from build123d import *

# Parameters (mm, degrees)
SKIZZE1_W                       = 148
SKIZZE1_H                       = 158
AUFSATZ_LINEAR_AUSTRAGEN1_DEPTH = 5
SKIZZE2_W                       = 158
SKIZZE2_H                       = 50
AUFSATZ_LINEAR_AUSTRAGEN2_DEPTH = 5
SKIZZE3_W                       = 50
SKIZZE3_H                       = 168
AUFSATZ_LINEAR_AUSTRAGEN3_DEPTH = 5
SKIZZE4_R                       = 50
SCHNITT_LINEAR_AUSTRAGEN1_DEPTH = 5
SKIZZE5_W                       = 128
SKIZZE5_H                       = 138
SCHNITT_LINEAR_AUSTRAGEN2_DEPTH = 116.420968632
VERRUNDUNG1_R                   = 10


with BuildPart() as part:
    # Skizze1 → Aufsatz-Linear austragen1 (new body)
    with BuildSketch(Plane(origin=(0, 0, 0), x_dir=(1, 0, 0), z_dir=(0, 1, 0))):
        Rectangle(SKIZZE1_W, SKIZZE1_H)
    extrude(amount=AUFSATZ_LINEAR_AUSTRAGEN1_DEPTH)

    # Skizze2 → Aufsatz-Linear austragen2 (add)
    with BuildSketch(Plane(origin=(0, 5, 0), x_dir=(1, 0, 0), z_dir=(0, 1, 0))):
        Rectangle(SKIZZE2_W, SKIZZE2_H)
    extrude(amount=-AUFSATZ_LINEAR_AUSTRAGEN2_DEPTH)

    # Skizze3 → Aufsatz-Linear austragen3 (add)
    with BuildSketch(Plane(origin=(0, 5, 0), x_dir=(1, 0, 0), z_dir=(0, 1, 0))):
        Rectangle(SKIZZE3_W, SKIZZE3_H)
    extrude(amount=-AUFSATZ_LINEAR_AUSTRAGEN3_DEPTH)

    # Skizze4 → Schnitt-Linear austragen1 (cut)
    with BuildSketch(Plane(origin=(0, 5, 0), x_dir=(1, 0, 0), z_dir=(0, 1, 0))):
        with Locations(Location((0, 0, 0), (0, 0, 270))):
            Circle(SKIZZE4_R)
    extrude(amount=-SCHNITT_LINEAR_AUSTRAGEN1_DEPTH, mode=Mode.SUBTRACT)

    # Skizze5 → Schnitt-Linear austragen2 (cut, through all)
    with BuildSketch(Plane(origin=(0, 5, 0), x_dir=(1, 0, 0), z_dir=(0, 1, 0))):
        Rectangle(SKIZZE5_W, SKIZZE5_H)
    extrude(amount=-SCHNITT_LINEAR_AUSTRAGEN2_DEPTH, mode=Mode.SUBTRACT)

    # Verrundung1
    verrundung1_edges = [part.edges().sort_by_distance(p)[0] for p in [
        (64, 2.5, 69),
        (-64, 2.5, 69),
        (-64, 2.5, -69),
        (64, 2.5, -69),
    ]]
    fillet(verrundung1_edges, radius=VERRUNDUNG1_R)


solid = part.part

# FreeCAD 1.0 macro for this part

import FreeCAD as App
import Part
import Sketcher
from FreeCAD import Vector


def edges_at(feature, points):
    """Names of the edges that pass closest to the given points."""
    edges = feature.Shape.Edges
    near = lambda p: min(range(len(edges)), key=lambda i: edges[i].distToShape(Part.Vertex(*p))[0])
    return sorted({f"Edge{near(p) + 1}" for p in points})

doc = App.newDocument("Part")
body = doc.addObject("PartDesign::Body", "Body")

sketch1 = doc.addObject("Sketcher::SketchObject", "Sketch")
body.addObject(sketch1)
sketch1.AttachmentSupport = (doc.XZ_Plane, [""])
sketch1.MapMode = "FlatFace"
sketch1.addGeometry([
    Part.LineSegment(Vector(-74, -79, 0), Vector(-74, 79, 0)),
    Part.LineSegment(Vector(-74, 79, 0), Vector(74, 79, 0)),
    Part.LineSegment(Vector(74, 79, 0), Vector(74, -79, 0)),
    Part.LineSegment(Vector(74, -79, 0), Vector(-74, -79, 0)),
], False)
sketch1.addConstraint([
    Sketcher.Constraint("Coincident", 0, 2, 1, 1),
    Sketcher.Constraint("Coincident", 1, 2, 2, 1),
    Sketcher.Constraint("Coincident", 2, 2, 3, 1),
    Sketcher.Constraint("Coincident", 3, 2, 0, 1),
    Sketcher.Constraint("Vertical", 0),
    Sketcher.Constraint("Horizontal", 1),
    Sketcher.Constraint("Vertical", 2),
    Sketcher.Constraint("Horizontal", 3),
    Sketcher.Constraint("Symmetric", 0, 2, 2, 2, -1, 1),
    Sketcher.Constraint("DistanceX", 1, 1, 1, 2, 148.0),
    Sketcher.Constraint("DistanceY", 0, 1, 0, 2, 158.0),
])
pad1 = doc.addObject("PartDesign::Pad", "Pad")
body.addObject(pad1)
pad1.Profile = sketch1
pad1.Length = 5
pad1.Reversed = True

sketch2 = doc.addObject("Sketcher::SketchObject", "Sketch001")
body.addObject(sketch2)
sketch2.AttachmentSupport = (doc.XZ_Plane, [""])
sketch2.MapMode = "FlatFace"
sketch2.AttachmentOffset = App.Placement(Vector(0, 0, -5), App.Rotation())
sketch2.addGeometry([
    Part.LineSegment(Vector(-79, -25, 0), Vector(-79, 25, 0)),
    Part.LineSegment(Vector(-79, 25, 0), Vector(79, 25, 0)),
    Part.LineSegment(Vector(79, 25, 0), Vector(79, -25, 0)),
    Part.LineSegment(Vector(79, -25, 0), Vector(-79, -25, 0)),
], False)
sketch2.addConstraint([
    Sketcher.Constraint("Coincident", 0, 2, 1, 1),
    Sketcher.Constraint("Coincident", 1, 2, 2, 1),
    Sketcher.Constraint("Coincident", 2, 2, 3, 1),
    Sketcher.Constraint("Coincident", 3, 2, 0, 1),
    Sketcher.Constraint("Vertical", 0),
    Sketcher.Constraint("Horizontal", 1),
    Sketcher.Constraint("Vertical", 2),
    Sketcher.Constraint("Horizontal", 3),
    Sketcher.Constraint("Symmetric", 0, 2, 2, 2, -1, 1),
    Sketcher.Constraint("DistanceX", 1, 1, 1, 2, 158.0),
    Sketcher.Constraint("DistanceY", 0, 1, 0, 2, 50.0),
])
pad2 = doc.addObject("PartDesign::Pad", "Pad001")
body.addObject(pad2)
pad2.Profile = sketch2
pad2.Length = 5

sketch3 = doc.addObject("Sketcher::SketchObject", "Sketch002")
body.addObject(sketch3)
sketch3.AttachmentSupport = (doc.XZ_Plane, [""])
sketch3.MapMode = "FlatFace"
sketch3.AttachmentOffset = App.Placement(Vector(0, 0, -5), App.Rotation())
sketch3.addGeometry([
    Part.LineSegment(Vector(-25, -84, 0), Vector(-25, 84, 0)),
    Part.LineSegment(Vector(-25, 84, 0), Vector(25, 84, 0)),
    Part.LineSegment(Vector(25, 84, 0), Vector(25, -84, 0)),
    Part.LineSegment(Vector(25, -84, 0), Vector(-25, -84, 0)),
], False)
sketch3.addConstraint([
    Sketcher.Constraint("Coincident", 0, 2, 1, 1),
    Sketcher.Constraint("Coincident", 1, 2, 2, 1),
    Sketcher.Constraint("Coincident", 2, 2, 3, 1),
    Sketcher.Constraint("Coincident", 3, 2, 0, 1),
    Sketcher.Constraint("Vertical", 0),
    Sketcher.Constraint("Horizontal", 1),
    Sketcher.Constraint("Vertical", 2),
    Sketcher.Constraint("Horizontal", 3),
    Sketcher.Constraint("Symmetric", 0, 2, 2, 2, -1, 1),
    Sketcher.Constraint("DistanceX", 1, 1, 1, 2, 50.0),
    Sketcher.Constraint("DistanceY", 0, 1, 0, 2, 168.0),
])
pad3 = doc.addObject("PartDesign::Pad", "Pad002")
body.addObject(pad3)
pad3.Profile = sketch3
pad3.Length = 5

sketch4 = doc.addObject("Sketcher::SketchObject", "Sketch003")
body.addObject(sketch4)
sketch4.AttachmentSupport = (doc.XZ_Plane, [""])
sketch4.MapMode = "FlatFace"
sketch4.AttachmentOffset = App.Placement(Vector(0, 0, -5), App.Rotation())
sketch4.addGeometry(Part.Circle(Vector(0, 0, 0), Vector(0, 0, 1), 50), False)
sketch4.addConstraint([
    Sketcher.Constraint("Coincident", 0, 3, -1, 1),
    Sketcher.Constraint("Diameter", 0, 100.0),
])
pocket1 = doc.addObject("PartDesign::Pocket", "Pocket")
body.addObject(pocket1)
pocket1.Profile = sketch4
pocket1.Length = 5
pocket1.Reversed = True

sketch5 = doc.addObject("Sketcher::SketchObject", "Sketch004")
body.addObject(sketch5)
sketch5.AttachmentSupport = (doc.XZ_Plane, [""])
sketch5.MapMode = "FlatFace"
sketch5.AttachmentOffset = App.Placement(Vector(0, 0, -5), App.Rotation())
sketch5.addGeometry([
    Part.LineSegment(Vector(-64, -69, 0), Vector(-64, 69, 0)),
    Part.LineSegment(Vector(-64, 69, 0), Vector(64, 69, 0)),
    Part.LineSegment(Vector(64, 69, 0), Vector(64, -69, 0)),
    Part.LineSegment(Vector(64, -69, 0), Vector(-64, -69, 0)),
], False)
sketch5.addConstraint([
    Sketcher.Constraint("Coincident", 0, 2, 1, 1),
    Sketcher.Constraint("Coincident", 1, 2, 2, 1),
    Sketcher.Constraint("Coincident", 2, 2, 3, 1),
    Sketcher.Constraint("Coincident", 3, 2, 0, 1),
    Sketcher.Constraint("Vertical", 0),
    Sketcher.Constraint("Horizontal", 1),
    Sketcher.Constraint("Vertical", 2),
    Sketcher.Constraint("Horizontal", 3),
    Sketcher.Constraint("Symmetric", 0, 2, 2, 2, -1, 1),
    Sketcher.Constraint("DistanceX", 1, 1, 1, 2, 128.0),
    Sketcher.Constraint("DistanceY", 0, 1, 0, 2, 138.0),
])
pocket2 = doc.addObject("PartDesign::Pocket", "Pocket001")
body.addObject(pocket2)
pocket2.Profile = sketch5
pocket2.Type = "ThroughAll"
pocket2.Reversed = True
doc.recompute()

fillet = doc.addObject("PartDesign::Fillet", "Fillet")
body.addObject(fillet)
fillet.Base = (pocket2, edges_at(pocket2, [
    (64, 2.5, 69),
    (-64, 2.5, 69),
    (-64, 2.5, -69),
    (64, 2.5, -69),
]))
fillet.Radius = 10

doc.recompute()
